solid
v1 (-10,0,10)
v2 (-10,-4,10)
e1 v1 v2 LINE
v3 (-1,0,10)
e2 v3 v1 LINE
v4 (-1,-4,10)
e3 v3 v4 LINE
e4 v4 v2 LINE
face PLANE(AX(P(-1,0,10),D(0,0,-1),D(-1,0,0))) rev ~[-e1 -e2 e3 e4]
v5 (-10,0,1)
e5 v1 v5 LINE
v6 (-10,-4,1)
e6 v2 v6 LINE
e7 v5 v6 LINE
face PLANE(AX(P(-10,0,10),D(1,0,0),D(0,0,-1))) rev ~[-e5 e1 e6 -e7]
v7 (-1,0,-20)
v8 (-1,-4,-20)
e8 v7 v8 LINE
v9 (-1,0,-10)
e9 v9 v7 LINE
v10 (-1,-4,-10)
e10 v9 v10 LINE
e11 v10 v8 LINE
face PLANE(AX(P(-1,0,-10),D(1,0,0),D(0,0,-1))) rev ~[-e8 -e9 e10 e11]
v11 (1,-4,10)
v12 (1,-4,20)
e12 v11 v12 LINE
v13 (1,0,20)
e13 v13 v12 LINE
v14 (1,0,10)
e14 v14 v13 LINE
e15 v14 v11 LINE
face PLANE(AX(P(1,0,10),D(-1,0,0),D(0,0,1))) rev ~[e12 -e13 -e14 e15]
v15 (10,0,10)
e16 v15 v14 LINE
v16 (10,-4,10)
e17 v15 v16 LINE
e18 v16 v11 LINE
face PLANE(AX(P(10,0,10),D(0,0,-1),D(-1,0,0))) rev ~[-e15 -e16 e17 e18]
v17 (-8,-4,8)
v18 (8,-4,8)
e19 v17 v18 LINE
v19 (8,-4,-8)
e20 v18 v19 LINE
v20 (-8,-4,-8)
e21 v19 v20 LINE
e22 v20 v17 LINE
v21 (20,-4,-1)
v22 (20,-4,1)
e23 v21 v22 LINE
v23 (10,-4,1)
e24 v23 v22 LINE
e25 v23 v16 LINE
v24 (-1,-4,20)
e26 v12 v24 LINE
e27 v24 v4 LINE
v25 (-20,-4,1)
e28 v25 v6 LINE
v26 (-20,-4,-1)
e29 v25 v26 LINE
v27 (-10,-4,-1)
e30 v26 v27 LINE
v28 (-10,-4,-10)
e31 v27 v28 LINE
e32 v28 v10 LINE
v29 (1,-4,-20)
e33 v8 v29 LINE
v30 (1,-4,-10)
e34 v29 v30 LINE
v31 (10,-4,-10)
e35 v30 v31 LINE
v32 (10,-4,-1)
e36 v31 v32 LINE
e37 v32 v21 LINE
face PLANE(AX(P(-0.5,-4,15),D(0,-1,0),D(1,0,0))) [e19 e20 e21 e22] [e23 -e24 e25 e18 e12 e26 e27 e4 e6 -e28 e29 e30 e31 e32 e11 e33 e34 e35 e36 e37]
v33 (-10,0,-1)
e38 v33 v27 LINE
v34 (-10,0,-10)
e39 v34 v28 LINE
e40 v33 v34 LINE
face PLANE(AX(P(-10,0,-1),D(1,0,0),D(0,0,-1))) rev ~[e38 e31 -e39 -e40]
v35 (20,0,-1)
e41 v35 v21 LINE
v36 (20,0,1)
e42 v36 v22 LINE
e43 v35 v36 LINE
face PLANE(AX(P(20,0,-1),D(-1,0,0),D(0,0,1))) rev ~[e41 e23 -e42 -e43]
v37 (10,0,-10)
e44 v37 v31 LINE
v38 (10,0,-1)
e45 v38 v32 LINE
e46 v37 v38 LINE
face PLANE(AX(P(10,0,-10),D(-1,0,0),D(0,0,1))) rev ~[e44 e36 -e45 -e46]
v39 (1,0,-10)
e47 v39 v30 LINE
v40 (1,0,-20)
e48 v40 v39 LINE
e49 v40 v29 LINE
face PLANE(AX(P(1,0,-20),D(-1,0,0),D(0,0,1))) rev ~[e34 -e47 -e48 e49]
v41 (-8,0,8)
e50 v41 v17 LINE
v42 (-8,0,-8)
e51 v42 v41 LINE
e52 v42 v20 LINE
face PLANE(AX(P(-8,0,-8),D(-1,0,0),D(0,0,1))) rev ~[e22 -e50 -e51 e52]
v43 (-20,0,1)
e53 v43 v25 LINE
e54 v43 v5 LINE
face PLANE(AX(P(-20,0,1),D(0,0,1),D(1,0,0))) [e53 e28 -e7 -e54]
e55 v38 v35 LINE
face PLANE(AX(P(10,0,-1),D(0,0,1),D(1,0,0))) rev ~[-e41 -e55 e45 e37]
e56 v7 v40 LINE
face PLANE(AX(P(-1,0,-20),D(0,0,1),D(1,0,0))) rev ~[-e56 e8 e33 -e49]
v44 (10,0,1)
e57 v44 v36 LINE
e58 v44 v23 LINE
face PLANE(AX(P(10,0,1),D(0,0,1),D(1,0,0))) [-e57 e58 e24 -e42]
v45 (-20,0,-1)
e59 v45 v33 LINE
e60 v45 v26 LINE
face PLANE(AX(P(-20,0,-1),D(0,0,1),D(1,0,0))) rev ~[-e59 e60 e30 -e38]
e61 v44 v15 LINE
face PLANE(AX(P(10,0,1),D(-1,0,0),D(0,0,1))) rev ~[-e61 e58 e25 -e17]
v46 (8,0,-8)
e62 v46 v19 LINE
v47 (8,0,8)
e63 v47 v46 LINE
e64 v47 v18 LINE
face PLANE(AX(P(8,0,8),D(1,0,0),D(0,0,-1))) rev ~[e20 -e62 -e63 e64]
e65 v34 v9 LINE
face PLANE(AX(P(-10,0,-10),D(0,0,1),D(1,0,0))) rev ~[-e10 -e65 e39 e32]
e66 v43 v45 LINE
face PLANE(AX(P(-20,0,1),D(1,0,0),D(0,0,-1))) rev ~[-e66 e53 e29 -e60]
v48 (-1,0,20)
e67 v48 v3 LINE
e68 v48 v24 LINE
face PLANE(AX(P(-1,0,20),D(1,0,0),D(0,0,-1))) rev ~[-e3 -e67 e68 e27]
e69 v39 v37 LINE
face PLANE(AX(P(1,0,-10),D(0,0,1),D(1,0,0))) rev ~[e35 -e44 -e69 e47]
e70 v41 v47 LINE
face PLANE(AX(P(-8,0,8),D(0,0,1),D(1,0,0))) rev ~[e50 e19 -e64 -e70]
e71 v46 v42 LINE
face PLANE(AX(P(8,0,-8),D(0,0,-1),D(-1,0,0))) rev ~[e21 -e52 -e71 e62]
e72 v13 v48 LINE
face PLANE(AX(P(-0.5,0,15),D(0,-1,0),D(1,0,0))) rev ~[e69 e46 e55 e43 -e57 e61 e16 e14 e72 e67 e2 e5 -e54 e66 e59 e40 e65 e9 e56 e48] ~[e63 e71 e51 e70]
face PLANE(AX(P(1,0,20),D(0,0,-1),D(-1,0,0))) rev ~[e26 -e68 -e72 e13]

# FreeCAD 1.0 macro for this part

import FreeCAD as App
import Part
import Sketcher
from FreeCAD import Vector


def add_polygon(sketch, points):
    """Adds a closed chain of lines whose ends are joined by coincident constraints."""
    first, n = sketch.GeometryCount, len(points)
    for a, b in zip(points, points[1:] + points[:1]):
        sketch.addGeometry(Part.LineSegment(App.Vector(*a, 0), App.Vector(*b, 0)), False)
    for i in range(n):
        sketch.addConstraint(Sketcher.Constraint("Coincident", first + i, 2, first + (i + 1) % n, 1))

doc = App.newDocument("Part")
body = doc.addObject("PartDesign::Body", "Body")

sketch1 = doc.addObject("Sketcher::SketchObject", "Sketch")
body.addObject(sketch1)
sketch1.AttachmentSupport = (doc.XZ_Plane, [""])
sketch1.MapMode = "FlatFace"
add_polygon(sketch1, [(-1, 20), (-1, 10), (-10, 10), (-10, 1), (-20, 1), (-20, -1), (-10, -1), (-10, -10), (-1, -10), (-1, -20), (1, -20), (1, -10), (10, -10), (10, -1), (20, -1), (20, 1), (10, 1), (10, 10), (1, 10), (1, 20)])
add_polygon(sketch1, [(-8, 8), (8, 8), (8, -8), (-8, -8)])
sketch1.addConstraint([
    Sketcher.Constraint("Vertical", 0),
    Sketcher.Constraint("Horizontal", 1),
    Sketcher.Constraint("Vertical", 2),
    Sketcher.Constraint("Horizontal", 3),
    Sketcher.Constraint("Vertical", 4),
    Sketcher.Constraint("Horizontal", 5),
    Sketcher.Constraint("Vertical", 6),
    Sketcher.Constraint("Horizontal", 7),
    Sketcher.Constraint("Vertical", 8),
    Sketcher.Constraint("Horizontal", 9),
    Sketcher.Constraint("Vertical", 10),
    Sketcher.Constraint("Horizontal", 11),
    Sketcher.Constraint("Vertical", 12),
    Sketcher.Constraint("Horizontal", 13),
    Sketcher.Constraint("Vertical", 14),
    Sketcher.Constraint("Horizontal", 15),
    Sketcher.Constraint("Vertical", 16),
    Sketcher.Constraint("Horizontal", 17),
    Sketcher.Constraint("Vertical", 18),
    Sketcher.Constraint("Horizontal", 19),
    Sketcher.Constraint("Horizontal", 20),
    Sketcher.Constraint("Vertical", 21),
    Sketcher.Constraint("Horizontal", 22),
    Sketcher.Constraint("Vertical", 23),
    Sketcher.Constraint("Symmetric", 0, 2, 10, 2, -1, 1),
    Sketcher.Constraint("Symmetric", 2, 2, 12, 2, -1, 1),
    Sketcher.Constraint("Symmetric", 4, 2, 14, 2, -1, 1),
    Sketcher.Constraint("Symmetric", 6, 2, 16, 2, -1, 1),
    Sketcher.Constraint("Symmetric", 8, 2, 18, 2, -1, 1),
    Sketcher.Constraint("Symmetric", 20, 2, 22, 2, -1, 1),
    Sketcher.Constraint("Symmetric", 7, 2, 10, 2, -2),
    Sketcher.Constraint("Symmetric", 5, 2, 12, 2, -2),
    Sketcher.Constraint("Equal", 15, 0),
    Sketcher.Constraint("Equal", 17, 2),
    Sketcher.Constraint("Equal", 19, 4),
    Sketcher.Constraint("Equal", 22, 21),
    Sketcher.Constraint("DistanceX", 1, 2, 1, 1, 9.0),
    Sketcher.Constraint("DistanceX", 3, 2, 3, 1, 10.0),
    Sketcher.Constraint("DistanceX", 9, 1, 9, 2, 2.0),
    Sketcher.Constraint("DistanceX", 20, 1, 20, 2, 16.0),
])
pad1 = doc.addObject("PartDesign::Pad", "Pad")
body.addObject(pad1)
pad1.Profile = sketch1
pad1.Length = 4

doc.recompute()
